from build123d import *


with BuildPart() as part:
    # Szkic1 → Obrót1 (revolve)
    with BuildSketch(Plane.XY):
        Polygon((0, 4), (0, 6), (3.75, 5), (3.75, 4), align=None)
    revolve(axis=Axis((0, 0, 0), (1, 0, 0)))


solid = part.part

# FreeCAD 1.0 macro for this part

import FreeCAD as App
import Part
import Sketcher

V = App.Vector

doc = App.newDocument("Part")
body = doc.addObject("PartDesign::Body", "Body")

sketch1 = doc.addObject("Sketcher::SketchObject", "Sketch")
body.addObject(sketch1)
sketch1.AttachmentSupport = (doc.XY_Plane, [""])
sketch1.MapMode = "FlatFace"
sketch1.addGeometry([
    Part.LineSegment(V(0, 6, 0), V(0, 4, 0)),
    Part.LineSegment(V(0, 4, 0), V(3.8, 4, 0)),
    Part.LineSegment(V(3.8, 4, 0), V(3.8, 5, 0)),
    Part.LineSegment(V(3.8, 5, 0), V(0, 6, 0)),
], False)
sketch1.addConstraint([
    Sketcher.Constraint("Coincident", 0, 2, 1, 1),
    Sketcher.Constraint("Coincident", 1, 2, 2, 1),
    Sketcher.Constraint("Coincident", 2, 2, 3, 1),
    Sketcher.Constraint("Coincident", 3, 2, 0, 1),
    Sketcher.Constraint("Vertical", 0),
    Sketcher.Constraint("Horizontal", 1),
    Sketcher.Constraint("Vertical", 2),
    Sketcher.Constraint("PointOnObject", 0, 2, -2),
    Sketcher.Constraint("DistanceY", 0, 2, 0, 1, 2.0),
    Sketcher.Constraint("DistanceY", 2, 1, 2, 2, 1.0),
    Sketcher.Constraint("DistanceY", -1, 1, 0, 2, 4.0),
    Sketcher.Constraint("DistanceX", 1, 1, 1, 2, 3.75),
])
revolution = doc.addObject("PartDesign::Revolution", "Revolution")
body.addObject(revolution)
revolution.Profile = sketch1
revolution.ReferenceAxis = (sketch1, ["H_Axis"])
revolution.Angle = 360

doc.recompute()
